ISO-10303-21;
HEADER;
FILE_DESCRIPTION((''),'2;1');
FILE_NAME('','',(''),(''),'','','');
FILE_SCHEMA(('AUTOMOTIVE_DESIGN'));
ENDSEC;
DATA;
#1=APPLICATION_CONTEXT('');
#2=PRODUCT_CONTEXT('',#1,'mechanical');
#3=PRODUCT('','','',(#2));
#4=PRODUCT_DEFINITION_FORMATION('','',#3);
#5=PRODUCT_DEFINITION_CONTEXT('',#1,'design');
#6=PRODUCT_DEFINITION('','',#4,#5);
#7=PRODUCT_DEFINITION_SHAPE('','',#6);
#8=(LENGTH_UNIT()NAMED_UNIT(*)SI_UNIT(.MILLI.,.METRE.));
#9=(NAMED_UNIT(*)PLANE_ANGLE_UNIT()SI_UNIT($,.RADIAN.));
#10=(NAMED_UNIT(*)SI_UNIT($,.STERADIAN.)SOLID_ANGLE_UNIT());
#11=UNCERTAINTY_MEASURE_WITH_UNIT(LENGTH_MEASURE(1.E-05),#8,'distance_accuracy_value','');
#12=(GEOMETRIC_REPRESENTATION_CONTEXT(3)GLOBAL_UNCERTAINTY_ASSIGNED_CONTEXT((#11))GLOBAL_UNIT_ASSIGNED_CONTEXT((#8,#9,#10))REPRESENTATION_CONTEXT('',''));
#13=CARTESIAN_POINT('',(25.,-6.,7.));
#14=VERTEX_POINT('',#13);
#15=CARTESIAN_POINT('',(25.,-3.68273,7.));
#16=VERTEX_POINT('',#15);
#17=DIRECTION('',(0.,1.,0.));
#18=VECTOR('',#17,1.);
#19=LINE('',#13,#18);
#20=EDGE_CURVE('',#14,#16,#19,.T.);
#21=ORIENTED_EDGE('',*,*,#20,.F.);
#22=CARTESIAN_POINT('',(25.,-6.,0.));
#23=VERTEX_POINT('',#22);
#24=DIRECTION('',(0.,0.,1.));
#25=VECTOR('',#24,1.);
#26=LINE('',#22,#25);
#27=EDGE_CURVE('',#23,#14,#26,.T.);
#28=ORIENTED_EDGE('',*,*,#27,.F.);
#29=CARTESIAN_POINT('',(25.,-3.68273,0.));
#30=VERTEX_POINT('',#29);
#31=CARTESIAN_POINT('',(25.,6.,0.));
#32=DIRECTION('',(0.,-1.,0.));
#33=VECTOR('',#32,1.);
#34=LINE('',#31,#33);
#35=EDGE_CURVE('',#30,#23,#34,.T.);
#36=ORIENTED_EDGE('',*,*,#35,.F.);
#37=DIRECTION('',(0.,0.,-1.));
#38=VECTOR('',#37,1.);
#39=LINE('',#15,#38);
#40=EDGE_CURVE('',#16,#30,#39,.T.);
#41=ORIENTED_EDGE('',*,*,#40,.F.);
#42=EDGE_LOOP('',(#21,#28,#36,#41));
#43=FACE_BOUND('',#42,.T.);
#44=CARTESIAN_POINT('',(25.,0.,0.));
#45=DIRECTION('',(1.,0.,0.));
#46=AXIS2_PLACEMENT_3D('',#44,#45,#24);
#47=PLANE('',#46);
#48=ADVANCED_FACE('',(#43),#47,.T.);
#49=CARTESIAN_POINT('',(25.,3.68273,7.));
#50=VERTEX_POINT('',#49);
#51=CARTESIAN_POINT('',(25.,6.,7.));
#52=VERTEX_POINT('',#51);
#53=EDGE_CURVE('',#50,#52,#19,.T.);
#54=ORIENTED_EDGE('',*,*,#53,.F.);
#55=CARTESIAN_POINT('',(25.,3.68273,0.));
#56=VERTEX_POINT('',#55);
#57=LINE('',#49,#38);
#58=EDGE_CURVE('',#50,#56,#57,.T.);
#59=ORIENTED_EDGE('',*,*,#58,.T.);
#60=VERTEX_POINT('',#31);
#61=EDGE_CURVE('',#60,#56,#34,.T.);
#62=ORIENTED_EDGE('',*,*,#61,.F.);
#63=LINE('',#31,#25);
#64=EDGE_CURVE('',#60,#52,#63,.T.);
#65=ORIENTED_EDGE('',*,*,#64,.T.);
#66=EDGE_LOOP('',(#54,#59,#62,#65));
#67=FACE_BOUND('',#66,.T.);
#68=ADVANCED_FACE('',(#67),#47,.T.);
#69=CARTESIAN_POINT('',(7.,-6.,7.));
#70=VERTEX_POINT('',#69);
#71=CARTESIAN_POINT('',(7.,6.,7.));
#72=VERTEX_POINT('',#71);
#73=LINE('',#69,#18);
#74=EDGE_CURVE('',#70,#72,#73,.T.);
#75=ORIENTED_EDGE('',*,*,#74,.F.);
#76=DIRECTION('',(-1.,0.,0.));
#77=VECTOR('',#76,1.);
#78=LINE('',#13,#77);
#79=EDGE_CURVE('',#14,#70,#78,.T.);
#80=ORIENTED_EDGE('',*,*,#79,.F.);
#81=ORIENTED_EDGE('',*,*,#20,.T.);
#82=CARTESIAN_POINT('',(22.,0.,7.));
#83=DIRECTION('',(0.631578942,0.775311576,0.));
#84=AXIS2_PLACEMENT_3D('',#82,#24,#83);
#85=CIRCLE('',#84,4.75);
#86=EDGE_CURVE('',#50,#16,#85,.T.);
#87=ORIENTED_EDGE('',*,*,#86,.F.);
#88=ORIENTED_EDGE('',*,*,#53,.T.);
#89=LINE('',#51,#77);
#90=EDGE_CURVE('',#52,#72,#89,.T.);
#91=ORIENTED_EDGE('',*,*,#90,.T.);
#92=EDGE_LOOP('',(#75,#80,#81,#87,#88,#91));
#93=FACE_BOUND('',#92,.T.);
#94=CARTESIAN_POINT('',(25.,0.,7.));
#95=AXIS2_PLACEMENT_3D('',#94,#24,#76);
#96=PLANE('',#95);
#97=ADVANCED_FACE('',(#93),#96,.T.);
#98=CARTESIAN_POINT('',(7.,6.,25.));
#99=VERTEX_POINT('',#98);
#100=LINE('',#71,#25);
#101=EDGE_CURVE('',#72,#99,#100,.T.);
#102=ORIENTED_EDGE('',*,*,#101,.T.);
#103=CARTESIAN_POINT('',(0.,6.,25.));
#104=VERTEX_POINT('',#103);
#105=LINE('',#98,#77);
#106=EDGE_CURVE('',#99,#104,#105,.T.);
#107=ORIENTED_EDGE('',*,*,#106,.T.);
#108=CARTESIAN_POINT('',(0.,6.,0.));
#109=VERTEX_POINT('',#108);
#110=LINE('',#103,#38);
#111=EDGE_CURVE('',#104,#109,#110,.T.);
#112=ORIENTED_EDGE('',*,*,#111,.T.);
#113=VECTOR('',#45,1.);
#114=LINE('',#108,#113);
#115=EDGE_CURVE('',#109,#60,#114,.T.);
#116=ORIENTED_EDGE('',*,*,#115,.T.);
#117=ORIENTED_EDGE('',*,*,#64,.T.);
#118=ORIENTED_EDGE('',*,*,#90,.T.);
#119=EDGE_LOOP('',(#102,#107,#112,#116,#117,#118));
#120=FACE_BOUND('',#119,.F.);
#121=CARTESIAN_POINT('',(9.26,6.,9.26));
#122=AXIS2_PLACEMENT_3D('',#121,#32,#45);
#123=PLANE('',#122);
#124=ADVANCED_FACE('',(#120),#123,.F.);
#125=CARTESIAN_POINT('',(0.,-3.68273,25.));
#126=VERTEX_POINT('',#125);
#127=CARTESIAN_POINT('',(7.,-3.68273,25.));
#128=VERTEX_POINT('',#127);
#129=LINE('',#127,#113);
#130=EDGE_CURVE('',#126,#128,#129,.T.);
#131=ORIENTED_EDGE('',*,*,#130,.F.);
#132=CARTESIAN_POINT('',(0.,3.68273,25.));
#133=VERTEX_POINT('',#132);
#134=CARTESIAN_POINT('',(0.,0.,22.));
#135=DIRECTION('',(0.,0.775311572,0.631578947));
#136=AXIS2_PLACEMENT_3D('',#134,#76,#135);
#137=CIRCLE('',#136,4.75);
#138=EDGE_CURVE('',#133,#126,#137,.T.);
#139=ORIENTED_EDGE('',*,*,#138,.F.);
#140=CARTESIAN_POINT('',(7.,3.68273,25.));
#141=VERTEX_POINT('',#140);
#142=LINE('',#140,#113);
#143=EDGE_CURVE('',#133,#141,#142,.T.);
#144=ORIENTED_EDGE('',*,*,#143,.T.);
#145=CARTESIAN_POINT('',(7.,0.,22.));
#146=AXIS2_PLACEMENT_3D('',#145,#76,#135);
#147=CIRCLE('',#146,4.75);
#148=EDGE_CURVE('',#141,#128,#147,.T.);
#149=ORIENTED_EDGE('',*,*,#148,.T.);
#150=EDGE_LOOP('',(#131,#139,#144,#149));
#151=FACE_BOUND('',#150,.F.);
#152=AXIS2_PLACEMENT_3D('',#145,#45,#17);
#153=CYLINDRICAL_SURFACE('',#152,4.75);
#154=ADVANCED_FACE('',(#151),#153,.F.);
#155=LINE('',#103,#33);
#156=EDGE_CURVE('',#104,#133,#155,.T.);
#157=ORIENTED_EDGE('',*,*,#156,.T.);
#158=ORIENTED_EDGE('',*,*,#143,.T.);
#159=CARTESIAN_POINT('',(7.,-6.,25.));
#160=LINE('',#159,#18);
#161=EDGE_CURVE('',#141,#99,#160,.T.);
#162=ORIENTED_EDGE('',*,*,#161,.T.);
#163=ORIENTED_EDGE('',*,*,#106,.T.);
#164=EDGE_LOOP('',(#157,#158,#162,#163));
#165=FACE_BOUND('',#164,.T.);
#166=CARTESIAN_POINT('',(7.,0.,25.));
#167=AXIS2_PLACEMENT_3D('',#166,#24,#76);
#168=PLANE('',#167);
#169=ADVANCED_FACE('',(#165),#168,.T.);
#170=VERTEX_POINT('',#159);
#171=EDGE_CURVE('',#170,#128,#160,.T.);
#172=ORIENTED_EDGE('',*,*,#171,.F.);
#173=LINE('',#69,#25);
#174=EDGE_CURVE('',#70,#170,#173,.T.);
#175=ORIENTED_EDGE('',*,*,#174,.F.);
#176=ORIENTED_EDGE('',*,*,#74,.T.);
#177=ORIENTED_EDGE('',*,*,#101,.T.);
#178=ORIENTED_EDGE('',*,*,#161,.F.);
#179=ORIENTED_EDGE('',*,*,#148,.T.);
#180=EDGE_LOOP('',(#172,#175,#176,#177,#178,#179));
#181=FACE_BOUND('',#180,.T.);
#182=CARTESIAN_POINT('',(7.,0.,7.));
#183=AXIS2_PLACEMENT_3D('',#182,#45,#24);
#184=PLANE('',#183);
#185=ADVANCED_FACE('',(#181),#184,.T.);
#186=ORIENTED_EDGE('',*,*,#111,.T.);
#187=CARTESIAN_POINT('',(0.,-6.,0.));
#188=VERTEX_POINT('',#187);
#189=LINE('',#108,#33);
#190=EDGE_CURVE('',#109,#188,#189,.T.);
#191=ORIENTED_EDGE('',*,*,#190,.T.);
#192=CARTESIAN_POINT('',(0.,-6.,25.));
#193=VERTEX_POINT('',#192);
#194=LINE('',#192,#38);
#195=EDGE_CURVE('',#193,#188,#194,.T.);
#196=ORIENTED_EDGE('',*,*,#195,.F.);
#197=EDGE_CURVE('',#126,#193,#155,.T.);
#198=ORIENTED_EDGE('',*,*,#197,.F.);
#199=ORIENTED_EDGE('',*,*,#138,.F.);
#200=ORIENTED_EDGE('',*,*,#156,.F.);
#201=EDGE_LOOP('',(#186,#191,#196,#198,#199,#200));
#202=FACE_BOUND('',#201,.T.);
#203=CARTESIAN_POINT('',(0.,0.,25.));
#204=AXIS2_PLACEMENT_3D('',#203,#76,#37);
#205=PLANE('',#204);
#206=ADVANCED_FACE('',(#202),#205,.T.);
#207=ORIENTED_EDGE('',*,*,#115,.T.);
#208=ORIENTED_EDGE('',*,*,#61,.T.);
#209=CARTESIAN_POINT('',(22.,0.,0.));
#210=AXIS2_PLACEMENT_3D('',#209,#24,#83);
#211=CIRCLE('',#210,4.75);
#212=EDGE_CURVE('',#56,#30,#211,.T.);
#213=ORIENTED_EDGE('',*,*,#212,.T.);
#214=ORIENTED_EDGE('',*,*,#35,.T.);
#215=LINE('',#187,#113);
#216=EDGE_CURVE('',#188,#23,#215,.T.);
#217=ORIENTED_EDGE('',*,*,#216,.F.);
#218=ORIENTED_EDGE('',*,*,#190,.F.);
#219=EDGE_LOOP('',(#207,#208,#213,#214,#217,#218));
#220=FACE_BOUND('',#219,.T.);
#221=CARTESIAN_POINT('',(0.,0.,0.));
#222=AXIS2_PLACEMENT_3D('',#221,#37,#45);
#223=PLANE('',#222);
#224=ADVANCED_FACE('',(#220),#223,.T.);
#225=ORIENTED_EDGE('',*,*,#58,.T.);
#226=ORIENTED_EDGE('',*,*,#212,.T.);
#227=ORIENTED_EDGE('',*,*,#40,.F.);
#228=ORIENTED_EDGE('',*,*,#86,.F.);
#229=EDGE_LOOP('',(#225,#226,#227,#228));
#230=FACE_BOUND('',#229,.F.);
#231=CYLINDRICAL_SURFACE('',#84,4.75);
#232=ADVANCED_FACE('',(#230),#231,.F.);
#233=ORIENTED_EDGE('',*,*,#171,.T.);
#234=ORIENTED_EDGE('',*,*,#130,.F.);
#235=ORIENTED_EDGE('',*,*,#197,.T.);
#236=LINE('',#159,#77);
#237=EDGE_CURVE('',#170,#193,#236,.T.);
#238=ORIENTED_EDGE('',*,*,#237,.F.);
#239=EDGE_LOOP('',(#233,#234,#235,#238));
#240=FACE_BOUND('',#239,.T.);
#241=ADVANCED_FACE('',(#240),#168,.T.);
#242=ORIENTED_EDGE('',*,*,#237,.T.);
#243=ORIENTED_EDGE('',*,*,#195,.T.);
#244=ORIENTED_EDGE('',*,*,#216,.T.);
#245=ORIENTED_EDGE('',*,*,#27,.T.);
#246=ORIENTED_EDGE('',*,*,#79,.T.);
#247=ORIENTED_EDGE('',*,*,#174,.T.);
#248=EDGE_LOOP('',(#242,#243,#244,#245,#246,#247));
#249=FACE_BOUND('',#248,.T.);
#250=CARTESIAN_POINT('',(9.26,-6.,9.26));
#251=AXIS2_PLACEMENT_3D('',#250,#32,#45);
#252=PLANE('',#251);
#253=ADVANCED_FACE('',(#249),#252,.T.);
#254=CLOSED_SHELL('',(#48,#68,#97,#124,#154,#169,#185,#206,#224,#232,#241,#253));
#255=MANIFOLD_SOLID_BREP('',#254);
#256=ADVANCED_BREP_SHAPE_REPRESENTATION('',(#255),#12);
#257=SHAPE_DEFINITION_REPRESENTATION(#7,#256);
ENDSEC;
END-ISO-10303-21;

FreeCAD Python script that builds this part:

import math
import FreeCAD as App
import Part
import Sketcher

V = App.Vector
Q = App.Units.Quantity

doc = App.newDocument("Part")
body = doc.addObject("PartDesign::Body", "Body")

sketch1 = body.newObject("Sketcher::SketchObject", "Sketch")
sketch1.AttachmentSupport = (doc.getObject("XZ_Plane"), [""])
sketch1.MapMode = "FlatFace"
sketch1.addGeometry([
    Part.LineSegment(V(7, 25, 0), V(0, 25, 0)),
    Part.LineSegment(V(0, 25, 0), V(0, 0, 0)),
    Part.LineSegment(V(0, 0, 0), V(25, 0, 0)),
    Part.LineSegment(V(25, 0, 0), V(25, 7, 0)),
    Part.LineSegment(V(25, 7, 0), V(7, 7, 0)),
    Part.LineSegment(V(7, 7, 0), V(7, 25, 0)),
], False)
sketch1.addConstraint([
    Sketcher.Constraint("Coincident", 0, 2, 1, 1),
    Sketcher.Constraint("Coincident", 1, 2, 2, 1),
    Sketcher.Constraint("Coincident", 2, 2, 3, 1),
    Sketcher.Constraint("Coincident", 3, 2, 4, 1),
    Sketcher.Constraint("Coincident", 4, 2, 5, 1),
    Sketcher.Constraint("Coincident", 5, 2, 0, 1),
    Sketcher.Constraint("Horizontal", 0),
    Sketcher.Constraint("Vertical", 1),
    Sketcher.Constraint("Horizontal", 2),
    Sketcher.Constraint("Vertical", 3),
    Sketcher.Constraint("Horizontal", 4),
    Sketcher.Constraint("Vertical", 5),
    Sketcher.Constraint("Coincident", 1, 2, -1, 1),
    Sketcher.Constraint("Equal", 2, 1),
    Sketcher.Constraint("Equal", 0, 3),
    Sketcher.Constraint("DistanceX", 0, 2, 0, 1, Q("7 mm")),
    Sketcher.Constraint("DistanceX", 2, 1, 2, 2, Q("25 mm")),
])
pad1 = body.newObject("PartDesign::Pad", "Pad")
pad1.Profile = sketch1
pad1.Length = 12
pad1.Midplane = True

sketch2 = body.newObject("Sketcher::SketchObject", "Sketch001")
sketch2.AttachmentSupport = (doc.getObject("XY_Plane"), [""])
sketch2.MapMode = "FlatFace"
sketch2.AttachmentOffset = App.Placement(V(0, 0, 7), App.Rotation())
sketch2.addGeometry([
    Part.ArcOfCircle(Part.Circle(V(22, 0, 0), V(0, 0, 1), 4.7), math.radians(-51), math.radians(0)),
    Part.ArcOfCircle(Part.Circle(V(22, 0, 0), V(0, 0, 1), 4.7), math.radians(0), math.radians(51)),
    Part.ArcOfCircle(Part.Circle(V(22, 0, 0), V(0, 0, 1), 4.8), math.radians(51), math.radians(309)),
], False)
sketch2.addConstraint([
    Sketcher.Constraint("Tangent", 0, 2, 1, 1),
    Sketcher.Constraint("Tangent", 1, 2, 2, 1),
    Sketcher.Constraint("Tangent", 2, 2, 0, 1),
    Sketcher.Constraint("Symmetric", 1, 2, 2, 2, -1),
    Sketcher.Constraint("PointOnObject", 0, 2, -1),
    Sketcher.Constraint("Radius", 2, Q("4.75 mm")),
    Sketcher.Constraint("DistanceX", -1, 1, 2, 3, Q("22 mm")),
    Sketcher.Constraint("DistanceX", -1, 1, 1, 2, Q("25 mm")),
])
pocket1 = body.newObject("PartDesign::Pocket", "Pocket")
pocket1.Profile = sketch2
pocket1.Type = "ThroughAll"

sketch3 = body.newObject("Sketcher::SketchObject", "Sketch002")
sketch3.AttachmentSupport = (doc.getObject("YZ_Plane"), [""])
sketch3.MapMode = "FlatFace"
sketch3.AttachmentOffset = App.Placement(V(0, 0, 7), App.Rotation())
sketch3.addGeometry(Part.Circle(V(0, 22, 0), V(0, 0, 1), 4.8), False)
sketch3.addConstraint([
    Sketcher.Constraint("PointOnObject", 0, 3, -2),
    Sketcher.Constraint("Diameter", 0, Q("9.5 mm")),
    Sketcher.Constraint("DistanceY", -1, 1, 0, 3, Q("22 mm")),
])
pocket2 = body.newObject("PartDesign::Pocket", "Pocket001")
pocket2.Profile = sketch3
pocket2.Length = 25

doc.recompute()
